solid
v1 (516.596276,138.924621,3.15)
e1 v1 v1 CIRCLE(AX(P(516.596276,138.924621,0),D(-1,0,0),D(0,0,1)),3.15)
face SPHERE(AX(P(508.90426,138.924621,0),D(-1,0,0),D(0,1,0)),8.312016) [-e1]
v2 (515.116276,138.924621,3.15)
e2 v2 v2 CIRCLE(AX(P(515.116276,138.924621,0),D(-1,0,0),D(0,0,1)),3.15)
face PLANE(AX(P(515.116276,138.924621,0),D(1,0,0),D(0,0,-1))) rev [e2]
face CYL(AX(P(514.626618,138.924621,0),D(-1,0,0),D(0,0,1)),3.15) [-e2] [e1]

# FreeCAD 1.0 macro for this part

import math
import FreeCAD as App
import Part
import Sketcher

V = App.Vector

doc = App.newDocument("Part")
body = doc.addObject("PartDesign::Body", "Body")

# Sketch on XY plane
sketch1 = doc.addObject("Sketcher::SketchObject", "Sketch")
body.addObject(sketch1)
sketch1.AttachmentSupport = (doc.XY_Plane, [""])
sketch1.MapMode = "FlatFace"
sketch1.addGeometry([
    Part.LineSegment(V(515.1, 142.1, 0), V(515.1, 138.9, 0)),
    Part.LineSegment(V(515.1, 138.9, 0), V(517.2, 138.9, 0)),
    Part.ArcOfCircle(Part.Circle(V(508.9, 138.9, 0), V(0, 0, 1), 8.3), math.radians(0), math.radians(22)),
    Part.LineSegment(V(516.6, 142.1, 0), V(515.1, 142.1, 0)),
], False)
sketch1.addGeometry(Part.LineSegment(V(508.9, 138.9, 0), V(517.2, 138.9, 0)), True)  # axis
sketch1.addConstraint([
    Sketcher.Constraint("Coincident", 0, 2, 1, 1),
    Sketcher.Constraint("Coincident", 1, 2, 2, 1),
    Sketcher.Constraint("Coincident", 2, 2, 3, 1),
    Sketcher.Constraint("Coincident", 3, 2, 0, 1),
    Sketcher.Constraint("Vertical", 0),
    Sketcher.Constraint("Horizontal", 1),
    Sketcher.Constraint("Horizontal", 3),
    Sketcher.Constraint("Horizontal", 4),
    Sketcher.Constraint("Coincident", 4, 1, 2, 3),
    Sketcher.Constraint("Coincident", 4, 2, 1, 2),
    Sketcher.Constraint("DistanceX", 1, 1, 1, 2, 2.1),
    Sketcher.Constraint("DistanceX", 3, 2, 3, 1, 1.48),
    Sketcher.Constraint("DistanceY", 0, 2, 0, 1, 3.15),
    Sketcher.Constraint("DistanceX", -1, 1, 2, 3, 508.90426),
    Sketcher.Constraint("DistanceY", -1, 1, 2, 3, 138.924621),
])
revolution = doc.addObject("PartDesign::Revolution", "Revolution")
body.addObject(revolution)
revolution.Profile = sketch1
revolution.ReferenceAxis = (sketch1, ["Axis0"])
revolution.Angle = 360

doc.recompute()
